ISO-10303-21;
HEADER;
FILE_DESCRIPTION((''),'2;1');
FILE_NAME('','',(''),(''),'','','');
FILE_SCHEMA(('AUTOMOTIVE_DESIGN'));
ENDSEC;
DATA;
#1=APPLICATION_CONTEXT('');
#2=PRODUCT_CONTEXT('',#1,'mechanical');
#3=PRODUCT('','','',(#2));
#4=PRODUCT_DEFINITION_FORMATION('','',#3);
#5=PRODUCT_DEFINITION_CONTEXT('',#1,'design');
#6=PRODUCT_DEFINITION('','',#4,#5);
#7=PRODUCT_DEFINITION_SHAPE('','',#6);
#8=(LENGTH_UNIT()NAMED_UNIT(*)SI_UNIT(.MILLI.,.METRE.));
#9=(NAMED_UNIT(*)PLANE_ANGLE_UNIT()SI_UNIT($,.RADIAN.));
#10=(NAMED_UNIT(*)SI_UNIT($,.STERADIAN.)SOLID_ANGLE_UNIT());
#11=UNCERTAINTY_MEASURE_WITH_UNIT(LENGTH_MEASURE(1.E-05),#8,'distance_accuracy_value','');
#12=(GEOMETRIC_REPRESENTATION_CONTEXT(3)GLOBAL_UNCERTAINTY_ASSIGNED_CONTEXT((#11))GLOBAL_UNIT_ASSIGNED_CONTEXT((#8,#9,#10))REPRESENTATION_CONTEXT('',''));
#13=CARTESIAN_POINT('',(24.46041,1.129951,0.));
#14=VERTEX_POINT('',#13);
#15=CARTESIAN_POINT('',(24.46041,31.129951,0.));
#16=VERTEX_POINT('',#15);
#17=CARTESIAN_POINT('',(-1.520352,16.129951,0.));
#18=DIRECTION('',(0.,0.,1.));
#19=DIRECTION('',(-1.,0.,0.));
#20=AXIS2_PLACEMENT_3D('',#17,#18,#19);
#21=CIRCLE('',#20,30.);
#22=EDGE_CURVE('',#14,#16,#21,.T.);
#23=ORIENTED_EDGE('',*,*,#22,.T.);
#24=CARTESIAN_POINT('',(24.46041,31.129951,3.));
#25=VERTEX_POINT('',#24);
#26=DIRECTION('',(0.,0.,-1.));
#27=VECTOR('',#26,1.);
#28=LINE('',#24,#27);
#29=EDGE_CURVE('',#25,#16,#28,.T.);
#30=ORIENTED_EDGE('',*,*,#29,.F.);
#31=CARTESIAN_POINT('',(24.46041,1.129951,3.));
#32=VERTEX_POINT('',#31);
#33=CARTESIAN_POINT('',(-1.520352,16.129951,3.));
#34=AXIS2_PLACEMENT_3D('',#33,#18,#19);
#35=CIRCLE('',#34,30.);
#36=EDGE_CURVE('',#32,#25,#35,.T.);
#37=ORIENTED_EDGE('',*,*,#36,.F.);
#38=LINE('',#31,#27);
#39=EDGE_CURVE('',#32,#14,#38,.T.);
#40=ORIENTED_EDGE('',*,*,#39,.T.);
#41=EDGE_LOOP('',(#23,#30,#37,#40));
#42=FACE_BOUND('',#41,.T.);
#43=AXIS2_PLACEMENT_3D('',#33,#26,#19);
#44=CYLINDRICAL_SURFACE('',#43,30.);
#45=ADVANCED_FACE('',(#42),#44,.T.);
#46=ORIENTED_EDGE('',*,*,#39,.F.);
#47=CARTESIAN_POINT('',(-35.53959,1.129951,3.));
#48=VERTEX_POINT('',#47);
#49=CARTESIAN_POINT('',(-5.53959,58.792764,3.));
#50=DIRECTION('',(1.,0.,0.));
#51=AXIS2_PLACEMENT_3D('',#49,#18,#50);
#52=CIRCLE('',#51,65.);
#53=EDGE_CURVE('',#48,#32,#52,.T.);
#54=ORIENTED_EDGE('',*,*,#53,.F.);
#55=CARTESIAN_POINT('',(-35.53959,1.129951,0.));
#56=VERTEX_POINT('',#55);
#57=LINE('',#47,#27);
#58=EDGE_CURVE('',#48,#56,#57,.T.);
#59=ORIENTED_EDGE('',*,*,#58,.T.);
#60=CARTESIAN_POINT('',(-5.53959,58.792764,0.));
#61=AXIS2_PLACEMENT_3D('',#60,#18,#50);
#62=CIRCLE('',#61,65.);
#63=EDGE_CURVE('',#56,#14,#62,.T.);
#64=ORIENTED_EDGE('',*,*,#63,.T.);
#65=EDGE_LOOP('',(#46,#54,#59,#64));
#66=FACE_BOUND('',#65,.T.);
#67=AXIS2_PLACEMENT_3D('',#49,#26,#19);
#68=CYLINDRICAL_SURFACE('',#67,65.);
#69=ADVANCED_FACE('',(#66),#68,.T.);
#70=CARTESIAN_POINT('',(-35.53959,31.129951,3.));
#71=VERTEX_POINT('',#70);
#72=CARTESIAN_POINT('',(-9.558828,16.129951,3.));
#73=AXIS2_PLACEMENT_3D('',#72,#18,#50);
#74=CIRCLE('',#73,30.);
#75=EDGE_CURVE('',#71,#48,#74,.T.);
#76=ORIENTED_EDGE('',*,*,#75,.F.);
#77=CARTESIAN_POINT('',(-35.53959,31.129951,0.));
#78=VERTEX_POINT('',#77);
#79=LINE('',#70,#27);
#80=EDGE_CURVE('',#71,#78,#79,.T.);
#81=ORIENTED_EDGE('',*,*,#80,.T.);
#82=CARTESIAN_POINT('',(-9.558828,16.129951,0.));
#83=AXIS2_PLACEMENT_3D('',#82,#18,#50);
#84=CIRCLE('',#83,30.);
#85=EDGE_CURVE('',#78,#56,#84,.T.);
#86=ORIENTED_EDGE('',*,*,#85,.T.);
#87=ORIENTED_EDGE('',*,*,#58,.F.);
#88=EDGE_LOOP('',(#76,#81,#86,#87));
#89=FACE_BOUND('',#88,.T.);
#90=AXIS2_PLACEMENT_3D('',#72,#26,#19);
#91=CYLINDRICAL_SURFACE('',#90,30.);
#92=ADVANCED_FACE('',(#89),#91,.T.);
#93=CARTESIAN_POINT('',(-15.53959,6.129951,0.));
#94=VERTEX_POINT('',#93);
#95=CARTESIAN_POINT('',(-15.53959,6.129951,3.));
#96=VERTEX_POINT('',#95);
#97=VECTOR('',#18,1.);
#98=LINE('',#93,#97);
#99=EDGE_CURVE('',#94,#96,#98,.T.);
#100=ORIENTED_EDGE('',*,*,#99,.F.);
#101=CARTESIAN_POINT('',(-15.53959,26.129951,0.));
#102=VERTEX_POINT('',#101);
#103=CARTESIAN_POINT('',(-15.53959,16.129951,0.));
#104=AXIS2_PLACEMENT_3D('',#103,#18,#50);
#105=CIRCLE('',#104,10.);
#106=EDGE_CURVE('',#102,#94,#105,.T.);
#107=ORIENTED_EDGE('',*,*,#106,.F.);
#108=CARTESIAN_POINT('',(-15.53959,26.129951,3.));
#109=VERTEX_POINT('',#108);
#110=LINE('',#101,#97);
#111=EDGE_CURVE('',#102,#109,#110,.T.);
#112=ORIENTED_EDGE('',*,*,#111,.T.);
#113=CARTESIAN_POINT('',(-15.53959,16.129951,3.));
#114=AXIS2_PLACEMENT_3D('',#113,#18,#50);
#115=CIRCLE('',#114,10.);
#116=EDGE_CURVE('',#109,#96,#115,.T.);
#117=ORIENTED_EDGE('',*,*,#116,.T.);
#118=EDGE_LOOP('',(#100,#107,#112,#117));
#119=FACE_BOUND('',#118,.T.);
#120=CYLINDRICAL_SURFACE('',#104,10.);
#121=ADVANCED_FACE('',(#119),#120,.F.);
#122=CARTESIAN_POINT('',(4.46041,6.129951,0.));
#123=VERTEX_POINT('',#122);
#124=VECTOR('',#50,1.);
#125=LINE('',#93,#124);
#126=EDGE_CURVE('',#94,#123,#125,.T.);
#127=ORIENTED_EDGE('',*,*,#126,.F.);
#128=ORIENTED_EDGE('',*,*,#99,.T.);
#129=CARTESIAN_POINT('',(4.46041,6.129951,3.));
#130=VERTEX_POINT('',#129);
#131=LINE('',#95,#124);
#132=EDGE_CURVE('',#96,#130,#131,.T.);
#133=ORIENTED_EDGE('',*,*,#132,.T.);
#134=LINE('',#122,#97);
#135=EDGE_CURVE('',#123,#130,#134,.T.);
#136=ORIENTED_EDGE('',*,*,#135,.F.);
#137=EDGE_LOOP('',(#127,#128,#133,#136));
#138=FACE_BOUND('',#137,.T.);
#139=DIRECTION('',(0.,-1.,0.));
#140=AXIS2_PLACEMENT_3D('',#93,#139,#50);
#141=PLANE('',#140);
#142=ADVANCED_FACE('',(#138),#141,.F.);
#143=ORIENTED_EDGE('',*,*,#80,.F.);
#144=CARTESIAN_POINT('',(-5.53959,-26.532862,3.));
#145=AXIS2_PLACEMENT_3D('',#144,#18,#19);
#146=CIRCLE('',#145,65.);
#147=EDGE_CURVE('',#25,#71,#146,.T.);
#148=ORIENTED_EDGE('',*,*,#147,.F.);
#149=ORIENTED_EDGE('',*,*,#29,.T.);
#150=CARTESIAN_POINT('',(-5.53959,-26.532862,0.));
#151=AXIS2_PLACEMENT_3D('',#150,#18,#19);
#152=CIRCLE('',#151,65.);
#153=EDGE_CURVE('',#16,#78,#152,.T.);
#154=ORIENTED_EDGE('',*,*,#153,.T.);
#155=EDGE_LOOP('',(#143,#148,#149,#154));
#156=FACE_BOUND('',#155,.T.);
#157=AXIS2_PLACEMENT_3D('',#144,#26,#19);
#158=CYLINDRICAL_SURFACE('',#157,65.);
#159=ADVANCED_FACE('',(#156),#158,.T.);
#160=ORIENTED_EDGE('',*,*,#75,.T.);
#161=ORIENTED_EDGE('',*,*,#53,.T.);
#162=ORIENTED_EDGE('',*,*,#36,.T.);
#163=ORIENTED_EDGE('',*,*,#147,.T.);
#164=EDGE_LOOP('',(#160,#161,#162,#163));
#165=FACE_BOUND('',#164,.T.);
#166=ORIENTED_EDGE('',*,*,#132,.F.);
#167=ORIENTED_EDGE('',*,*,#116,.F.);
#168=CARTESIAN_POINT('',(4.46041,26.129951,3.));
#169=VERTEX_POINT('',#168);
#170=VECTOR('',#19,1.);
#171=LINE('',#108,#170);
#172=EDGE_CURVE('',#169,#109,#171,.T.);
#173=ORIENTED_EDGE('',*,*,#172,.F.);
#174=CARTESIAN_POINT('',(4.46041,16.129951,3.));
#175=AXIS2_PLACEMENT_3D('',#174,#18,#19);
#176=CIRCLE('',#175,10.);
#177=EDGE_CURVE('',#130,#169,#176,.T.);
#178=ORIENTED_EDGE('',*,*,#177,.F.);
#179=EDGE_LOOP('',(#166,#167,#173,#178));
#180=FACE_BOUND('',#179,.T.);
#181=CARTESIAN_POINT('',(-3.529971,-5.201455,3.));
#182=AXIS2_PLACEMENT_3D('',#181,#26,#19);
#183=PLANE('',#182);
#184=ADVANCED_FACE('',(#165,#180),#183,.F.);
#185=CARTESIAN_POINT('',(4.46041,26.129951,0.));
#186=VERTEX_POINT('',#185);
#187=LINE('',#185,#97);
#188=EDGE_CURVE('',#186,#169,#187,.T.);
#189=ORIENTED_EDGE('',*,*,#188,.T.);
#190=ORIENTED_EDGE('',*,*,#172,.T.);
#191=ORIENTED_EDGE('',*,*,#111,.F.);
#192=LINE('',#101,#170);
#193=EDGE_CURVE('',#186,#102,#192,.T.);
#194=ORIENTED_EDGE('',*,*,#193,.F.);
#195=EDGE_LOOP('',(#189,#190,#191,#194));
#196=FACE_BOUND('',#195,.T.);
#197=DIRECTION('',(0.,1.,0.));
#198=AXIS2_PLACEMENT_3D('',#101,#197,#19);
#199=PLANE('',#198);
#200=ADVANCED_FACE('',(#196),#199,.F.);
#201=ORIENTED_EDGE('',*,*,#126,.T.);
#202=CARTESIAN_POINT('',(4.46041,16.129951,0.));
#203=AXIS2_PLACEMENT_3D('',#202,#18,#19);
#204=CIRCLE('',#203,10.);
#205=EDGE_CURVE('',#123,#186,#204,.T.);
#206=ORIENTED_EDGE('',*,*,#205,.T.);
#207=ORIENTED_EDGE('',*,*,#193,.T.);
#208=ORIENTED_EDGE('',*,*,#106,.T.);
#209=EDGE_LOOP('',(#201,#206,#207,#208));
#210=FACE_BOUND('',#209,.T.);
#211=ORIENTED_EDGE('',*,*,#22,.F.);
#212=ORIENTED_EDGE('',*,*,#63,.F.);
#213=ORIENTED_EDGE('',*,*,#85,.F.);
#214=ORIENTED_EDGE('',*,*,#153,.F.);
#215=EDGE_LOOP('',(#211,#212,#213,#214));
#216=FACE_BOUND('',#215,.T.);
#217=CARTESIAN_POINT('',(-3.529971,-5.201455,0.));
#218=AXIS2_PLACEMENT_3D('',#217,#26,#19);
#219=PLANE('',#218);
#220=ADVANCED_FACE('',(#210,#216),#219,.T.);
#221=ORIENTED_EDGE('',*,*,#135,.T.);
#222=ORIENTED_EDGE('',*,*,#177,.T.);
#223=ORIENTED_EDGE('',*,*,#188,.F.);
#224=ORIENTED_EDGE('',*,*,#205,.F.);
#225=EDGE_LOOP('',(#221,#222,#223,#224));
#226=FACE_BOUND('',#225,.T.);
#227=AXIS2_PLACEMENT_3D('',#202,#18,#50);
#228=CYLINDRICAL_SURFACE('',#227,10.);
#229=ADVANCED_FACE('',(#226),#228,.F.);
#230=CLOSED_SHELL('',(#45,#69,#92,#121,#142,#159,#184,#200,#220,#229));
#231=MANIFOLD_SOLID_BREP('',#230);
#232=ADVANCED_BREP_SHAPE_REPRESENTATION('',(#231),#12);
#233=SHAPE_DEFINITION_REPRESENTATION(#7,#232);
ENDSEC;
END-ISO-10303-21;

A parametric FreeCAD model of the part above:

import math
import FreeCAD as App
import Part
import Sketcher
Q = App.Units.Quantity

doc = App.newDocument("Part")
body = doc.addObject("PartDesign::Body", "Body")

# Sketch on XY plane
sketch1 = body.newObject("Sketcher::SketchObject", "Sketch")
sketch1.AttachmentSupport = (doc.getObject("XY_Plane"), [""])
sketch1.MapMode = "FlatFace"
sketch1.addGeometry(Part.ArcOfCircle(Part.Circle(App.Vector(-10, 16, 0), App.Vector(0, 0, 1), 30), math.radians(150), math.radians(210)), False)
sketch1.addGeometry(Part.ArcOfCircle(Part.Circle(App.Vector(-6, 59, 0), App.Vector(0, 0, 1), 65), math.radians(-117), math.radians(-63)), False)
sketch1.addGeometry(Part.ArcOfCircle(Part.Circle(App.Vector(-2, 16, 0), App.Vector(0, 0, 1), 30), math.radians(-30), math.radians(30)), False)
sketch1.addGeometry(Part.ArcOfCircle(Part.Circle(App.Vector(-6, -27, 0), App.Vector(0, 0, 1), 65), math.radians(63), math.radians(117)), False)
sketch1.addConstraint(Sketcher.Constraint("Coincident", 0, 2, 1, 1))
sketch1.addConstraint(Sketcher.Constraint("Coincident", 1, 2, 2, 1))
sketch1.addConstraint(Sketcher.Constraint("Coincident", 2, 2, 3, 1))
sketch1.addConstraint(Sketcher.Constraint("Coincident", 3, 2, 0, 1))
sketch1.addConstraint(Sketcher.Constraint("Equal", 0, 2))
sketch1.addConstraint(Sketcher.Constraint("Equal", 1, 3))
sketch1.addConstraint(Sketcher.Constraint("Horizontal", 0, 3, 2, 3))
sketch1.addConstraint(Sketcher.Constraint("Horizontal", 0, 2, 1, 2))
sketch1.addConstraint(Sketcher.Constraint("Horizontal", 2, 2, 3, 2))
sketch1.addConstraint(Sketcher.Constraint("Vertical", 1, 2, 2, 2))
sketch1.addConstraint(Sketcher.Constraint("Radius", 0, Q("30 mm")))
sketch1.addConstraint(Sketcher.Constraint("Radius", 1, Q("65 mm")))
sketch1.addConstraint(Sketcher.Constraint("DistanceY", 0, 2, 0, 3, Q("15 mm")))
sketch1.addConstraint(Sketcher.Constraint("DistanceX", 0, 2, 3, 3, Q("30 mm")))
sketch1.addConstraint(Sketcher.Constraint("DistanceX", 0, 3, -1, 1, Q("9.558828 mm")))
sketch1.addConstraint(Sketcher.Constraint("DistanceY", -1, 1, 0, 3, Q("16.129951 mm")))
pad1 = body.newObject("PartDesign::Pad", "Pad")
pad1.Profile = sketch1
pad1.Length = 3

# Sketch on XY plane
sketch2 = body.newObject("Sketcher::SketchObject", "Sketch001")
sketch2.AttachmentSupport = (doc.getObject("XY_Plane"), [""])
sketch2.MapMode = "FlatFace"
sketch2.AttachmentOffset = App.Placement(App.Vector(0, 0, 3), App.Rotation())
sketch2.addGeometry(Part.LineSegment(App.Vector(4, 26, 0), App.Vector(-16, 26, 0)), False)
sketch2.addGeometry(Part.ArcOfCircle(Part.Circle(App.Vector(-16, 16, 0), App.Vector(0, 0, 1), 10), math.radians(90), math.radians(270)), False)
sketch2.addGeometry(Part.LineSegment(App.Vector(-16, 6, 0), App.Vector(4, 6, 0)), False)
sketch2.addGeometry(Part.ArcOfCircle(Part.Circle(App.Vector(4, 16, 0), App.Vector(0, 0, 1), 10), math.radians(-90), math.radians(90)), False)
sketch2.addConstraint(Sketcher.Constraint("Tangent", 0, 2, 1, 1))
sketch2.addConstraint(Sketcher.Constraint("Tangent", 1, 2, 2, 1))
sketch2.addConstraint(Sketcher.Constraint("Tangent", 2, 2, 3, 1))
sketch2.addConstraint(Sketcher.Constraint("Tangent", 3, 2, 0, 1))
sketch2.addConstraint(Sketcher.Constraint("Horizontal", 0))
sketch2.addConstraint(Sketcher.Constraint("Horizontal", 2))
sketch2.addConstraint(Sketcher.Constraint("Radius", 1, Q("10 mm")))
sketch2.addConstraint(Sketcher.Constraint("DistanceX", 0, 2, 0, 1, Q("20 mm")))
sketch2.addConstraint(Sketcher.Constraint("DistanceX", 1, 3, -1, 1, Q("15.53959 mm")))
sketch2.addConstraint(Sketcher.Constraint("DistanceY", -1, 1, 1, 3, Q("16.129951 mm")))
pocket1 = body.newObject("PartDesign::Pocket", "Pocket")
pocket1.Profile = sketch2
pocket1.Type = "ThroughAll"

doc.recompute()
